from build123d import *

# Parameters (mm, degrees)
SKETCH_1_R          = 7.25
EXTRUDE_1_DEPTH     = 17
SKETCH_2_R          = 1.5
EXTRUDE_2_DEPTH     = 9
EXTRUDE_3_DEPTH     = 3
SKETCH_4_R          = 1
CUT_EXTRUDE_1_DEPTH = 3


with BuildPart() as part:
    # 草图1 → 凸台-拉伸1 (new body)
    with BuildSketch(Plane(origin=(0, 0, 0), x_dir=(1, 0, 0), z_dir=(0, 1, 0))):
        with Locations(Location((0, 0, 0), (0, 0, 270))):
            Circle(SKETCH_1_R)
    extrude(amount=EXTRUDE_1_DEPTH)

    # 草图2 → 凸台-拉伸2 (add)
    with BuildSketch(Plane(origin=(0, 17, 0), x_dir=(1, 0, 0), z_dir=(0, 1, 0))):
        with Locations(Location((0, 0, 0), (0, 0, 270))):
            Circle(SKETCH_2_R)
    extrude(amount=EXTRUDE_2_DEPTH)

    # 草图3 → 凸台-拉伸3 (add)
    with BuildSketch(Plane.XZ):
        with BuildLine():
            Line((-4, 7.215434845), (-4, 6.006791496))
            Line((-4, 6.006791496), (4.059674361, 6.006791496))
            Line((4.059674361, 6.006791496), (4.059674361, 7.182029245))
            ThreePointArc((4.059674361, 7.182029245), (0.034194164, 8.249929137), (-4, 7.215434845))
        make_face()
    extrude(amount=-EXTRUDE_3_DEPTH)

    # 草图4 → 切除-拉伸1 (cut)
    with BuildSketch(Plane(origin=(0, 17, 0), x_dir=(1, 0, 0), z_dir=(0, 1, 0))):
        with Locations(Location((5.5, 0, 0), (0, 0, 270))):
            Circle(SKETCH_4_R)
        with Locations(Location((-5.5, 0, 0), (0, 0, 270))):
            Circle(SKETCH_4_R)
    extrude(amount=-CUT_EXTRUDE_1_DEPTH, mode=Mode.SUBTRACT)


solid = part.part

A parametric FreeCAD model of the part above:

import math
import FreeCAD as App
import Part
import Sketcher

doc = App.newDocument("Part")
params = doc.addObject("Spreadsheet::Sheet", "Params")
for row, (alias, value) in enumerate([
    ("sketch1_diameter", "14.5 mm"),
    ("pad1_length", "17 mm"),
    ("sketch2_diameter", "3 mm"),
    ("pad2_length", "9 mm"),
    ("sketch3_radius", "8.25 mm"),
    ("pad3_length", "3 mm"),
    ("sketch4_diameter", "2 mm"),
    ("pocket1_length", "3 mm"),
], start=1):
    params.set(f"A{row}", alias)
    params.set(f"B{row}", "=" + value)
    params.setAlias(f"B{row}", alias)

body = doc.addObject("PartDesign::Body", "Body")

# Sketch on XZ plane
sketch1 = body.newObject("Sketcher::SketchObject", "Sketch")
sketch1.AttachmentSupport = (doc.getObject("XZ_Plane"), [""])
sketch1.MapMode = "FlatFace"
sketch1.addGeometry(Part.Circle(App.Vector(0, 0, 0), App.Vector(0, 0, 1), 7), False)
sketch1.addConstraint([
    Sketcher.Constraint("Coincident", 0, 3, -1, 1),
    Sketcher.Constraint("Diameter", 0, 14.5),
])
sketch1.setExpression("Constraints[1]", "Params.sketch1_diameter")
pad1 = body.newObject("PartDesign::Pad", "Pad")
pad1.Profile = sketch1
pad1.setExpression("Length", "Params.pad1_length")
pad1.Reversed = True

# Sketch on XZ plane
sketch2 = body.newObject("Sketcher::SketchObject", "Sketch001")
sketch2.AttachmentSupport = (doc.getObject("XZ_Plane"), [""])
sketch2.MapMode = "FlatFace"
sketch2.AttachmentOffset = App.Placement(App.Vector(0, 0, -17), App.Rotation())
sketch2.addGeometry(Part.Circle(App.Vector(0, 0, 0), App.Vector(0, 0, 1), 1.5), False)
sketch2.addConstraint([
    Sketcher.Constraint("Coincident", 0, 3, -1, 1),
    Sketcher.Constraint("Diameter", 0, 3.0),
])
sketch2.setExpression("Constraints[1]", "Params.sketch2_diameter")
pad2 = body.newObject("PartDesign::Pad", "Pad001")
pad2.Profile = sketch2
pad2.setExpression("Length", "Params.pad2_length")
pad2.Reversed = True

# Sketch on XZ plane
sketch3 = body.newObject("Sketcher::SketchObject", "Sketch002")
sketch3.AttachmentSupport = (doc.getObject("XZ_Plane"), [""])
sketch3.MapMode = "FlatFace"
sketch3.addGeometry([
    Part.LineSegment(App.Vector(-4, 7.2, 0), App.Vector(-4, 6, 0)),
    Part.LineSegment(App.Vector(-4, 6, 0), App.Vector(4.1, 6, 0)),
    Part.LineSegment(App.Vector(4.1, 6, 0), App.Vector(4.1, 7.2, 0)),
    Part.ArcOfCircle(Part.Circle(App.Vector(0, 0, 0), App.Vector(0, 0, 1), 8.2), math.radians(61), math.radians(119)),
], False)
sketch3.addConstraint([
    Sketcher.Constraint("Coincident", 0, 2, 1, 1),
    Sketcher.Constraint("Coincident", 1, 2, 2, 1),
    Sketcher.Constraint("Coincident", 2, 2, 3, 1),
    Sketcher.Constraint("Coincident", 3, 2, 0, 1),
    Sketcher.Constraint("Vertical", 0),
    Sketcher.Constraint("Horizontal", 1),
    Sketcher.Constraint("Vertical", 2),
    Sketcher.Constraint("Coincident", 3, 3, -1, 1),
    Sketcher.Constraint("Radius", 3, 8.25),
    Sketcher.Constraint("DistanceX", 0, 2, -1, 1, 4.0),
    Sketcher.Constraint("DistanceX", 1, 1, 1, 2, 8.059674),
    Sketcher.Constraint("DistanceY", 0, 2, 0, 1, 1.208643),
])
sketch3.setExpression("Constraints[8]", "Params.sketch3_radius")
pad3 = body.newObject("PartDesign::Pad", "Pad002")
pad3.Profile = sketch3
pad3.setExpression("Length", "Params.pad3_length")
pad3.Reversed = True

# Sketch on XZ plane
sketch4 = body.newObject("Sketcher::SketchObject", "Sketch003")
sketch4.AttachmentSupport = (doc.getObject("XZ_Plane"), [""])
sketch4.MapMode = "FlatFace"
sketch4.AttachmentOffset = App.Placement(App.Vector(0, 0, -17), App.Rotation())
sketch4.addGeometry([
    Part.Circle(App.Vector(5.5, 0, 0), App.Vector(0, 0, 1), 1),
    Part.Circle(App.Vector(-5.5, 0, 0), App.Vector(0, 0, 1), 1),
], False)
sketch4.addConstraint([
    Sketcher.Constraint("Equal", 0, 1),
    Sketcher.Constraint("Symmetric", 0, 3, 1, 3, -1, 1),
    Sketcher.Constraint("PointOnObject", 0, 3, -1),
    Sketcher.Constraint("Diameter", 0, 2.0),
    Sketcher.Constraint("DistanceX", 1, 3, 0, 3, 11.0),
])
sketch4.setExpression("Constraints[3]", "Params.sketch4_diameter")
pocket1 = body.newObject("PartDesign::Pocket", "Pocket")
pocket1.Profile = sketch4
pocket1.setExpression("Length", "Params.pocket1_length")
pocket1.Reversed = True

doc.recompute()
